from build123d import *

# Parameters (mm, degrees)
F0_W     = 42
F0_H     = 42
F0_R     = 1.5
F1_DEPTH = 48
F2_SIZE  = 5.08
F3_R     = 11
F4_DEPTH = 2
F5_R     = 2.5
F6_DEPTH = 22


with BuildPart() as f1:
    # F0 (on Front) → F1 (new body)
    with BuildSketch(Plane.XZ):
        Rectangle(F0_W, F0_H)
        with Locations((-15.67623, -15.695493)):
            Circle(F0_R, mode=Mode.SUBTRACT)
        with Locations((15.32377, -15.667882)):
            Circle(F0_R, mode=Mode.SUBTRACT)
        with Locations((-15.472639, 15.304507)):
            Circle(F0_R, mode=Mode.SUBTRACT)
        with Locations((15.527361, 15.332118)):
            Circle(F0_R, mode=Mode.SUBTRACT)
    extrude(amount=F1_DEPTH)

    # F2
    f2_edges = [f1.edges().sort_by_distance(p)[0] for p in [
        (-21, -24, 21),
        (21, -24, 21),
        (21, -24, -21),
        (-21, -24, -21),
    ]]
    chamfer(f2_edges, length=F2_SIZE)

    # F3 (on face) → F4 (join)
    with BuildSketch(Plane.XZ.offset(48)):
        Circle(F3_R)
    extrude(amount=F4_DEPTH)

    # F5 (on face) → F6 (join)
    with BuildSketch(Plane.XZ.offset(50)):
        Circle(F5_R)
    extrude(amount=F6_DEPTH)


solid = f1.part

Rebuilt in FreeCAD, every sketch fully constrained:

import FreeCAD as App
import Part
import Sketcher
Q = App.Units.Quantity


def edges_at(feature, points):
    """Names of the edges that pass closest to the given points."""
    edges = feature.Shape.Edges
    near = lambda p: min(range(len(edges)), key=lambda i: edges[i].distToShape(Part.Vertex(*p))[0])
    return sorted({f"Edge{near(p) + 1}" for p in points})

doc = App.newDocument("Part")
body = doc.addObject("PartDesign::Body", "Body")

# Sketch on XZ plane
sketch1 = body.newObject("Sketcher::SketchObject", "Sketch")
sketch1.AttachmentSupport = (doc.getObject("XZ_Plane"), [""])
sketch1.MapMode = "FlatFace"
sketch1.addGeometry([
    Part.LineSegment(App.Vector(-21, 21, 0), App.Vector(-21, -21, 0)),  # 0
    Part.LineSegment(App.Vector(-21, -21, 0), App.Vector(21, -21, 0)),  # 1
    Part.LineSegment(App.Vector(21, -21, 0), App.Vector(21, 21, 0)),  # 2
    Part.LineSegment(App.Vector(21, 21, 0), App.Vector(-21, 21, 0)),  # 3
    Part.Circle(App.Vector(-15.7, -15.7, 0), App.Vector(0, 0, 1), 1.5),  # 4
    Part.Circle(App.Vector(15.3, -15.7, 0), App.Vector(0, 0, 1), 1.5),  # 5
    Part.Circle(App.Vector(-15.5, 15.3, 0), App.Vector(0, 0, 1), 1.5),  # 6
    Part.Circle(App.Vector(15.5, 15.3, 0), App.Vector(0, 0, 1), 1.5),  # 7
], False)
sketch1.addConstraint([
    Sketcher.Constraint("Coincident", 0, 2, 1, 1),
    Sketcher.Constraint("Coincident", 1, 2, 2, 1),
    Sketcher.Constraint("Coincident", 2, 2, 3, 1),
    Sketcher.Constraint("Coincident", 3, 2, 0, 1),
    Sketcher.Constraint("Vertical", 0),
    Sketcher.Constraint("Horizontal", 1),
    Sketcher.Constraint("Vertical", 2),
    Sketcher.Constraint("Horizontal", 3),
    Sketcher.Constraint("Equal", 4, 5),
    Sketcher.Constraint("Equal", 5, 6),
    Sketcher.Constraint("Equal", 6, 7),
    Sketcher.Constraint("Symmetric", 0, 2, 2, 2, -1, 1),
    Sketcher.Constraint("Equal", 3, 0),
    Sketcher.Constraint("Diameter", 4, Q("3 mm")),
    Sketcher.Constraint("DistanceX", 1, 1, 1, 2, Q("42 mm")),
    Sketcher.Constraint("DistanceX", 4, 3, 5, 3, Q("31 mm")),
    Sketcher.Constraint("DistanceY", 4, 3, 6, 3, Q("31 mm")),
    Sketcher.Constraint("DistanceX", 6, 3, 7, 3, Q("31 mm")),
    Sketcher.Constraint("DistanceY", 5, 3, 7, 3, Q("31 mm")),
    Sketcher.Constraint("DistanceX", 4, 3, -1, 1, Q("15.67623 mm")),
    Sketcher.Constraint("DistanceX", 6, 3, -1, 1, Q("15.472639 mm")),
    Sketcher.Constraint("DistanceY", 4, 3, 5, 3, Q("0.027611 mm")),
    Sketcher.Constraint("DistanceY", 4, 3, -1, 1, Q("15.695493 mm")),
])
pad1 = body.newObject("PartDesign::Pad", "Pad")
pad1.Profile = sketch1
pad1.Length = 48
doc.recompute()

chamfer = body.newObject("PartDesign::Chamfer", "Chamfer")
chamfer.Base = (pad1, edges_at(pad1, [
    (-21, -24, 21),
    (21, -24, 21),
    (21, -24, -21),
    (-21, -24, -21),
]))
chamfer.Size = 5.08

# Sketch on XZ plane
sketch2 = body.newObject("Sketcher::SketchObject", "Sketch001")
sketch2.AttachmentSupport = (doc.getObject("XZ_Plane"), [""])
sketch2.MapMode = "FlatFace"
sketch2.AttachmentOffset = App.Placement(App.Vector(0, 0, 48), App.Rotation())
sketch2.addGeometry(Part.Circle(App.Vector(0, 0, 0), App.Vector(0, 0, 1), 11), False)
sketch2.addConstraint([
    Sketcher.Constraint("Coincident", 0, 3, -1, 1),
    Sketcher.Constraint("Diameter", 0, Q("22 mm")),
])
pad2 = body.newObject("PartDesign::Pad", "Pad001")
pad2.Profile = sketch2
pad2.Length = 2

# Sketch on XZ plane
sketch3 = body.newObject("Sketcher::SketchObject", "Sketch002")
sketch3.AttachmentSupport = (doc.getObject("XZ_Plane"), [""])
sketch3.MapMode = "FlatFace"
sketch3.AttachmentOffset = App.Placement(App.Vector(0, 0, 50), App.Rotation())
sketch3.addGeometry(Part.Circle(App.Vector(0, 0, 0), App.Vector(0, 0, 1), 2.5), False)
sketch3.addConstraint([
    Sketcher.Constraint("Coincident", 0, 3, -1, 1),
    Sketcher.Constraint("Diameter", 0, Q("5 mm")),
])
pad3 = body.newObject("PartDesign::Pad", "Pad002")
pad3.Profile = sketch3
pad3.Length = 22

doc.recompute()
